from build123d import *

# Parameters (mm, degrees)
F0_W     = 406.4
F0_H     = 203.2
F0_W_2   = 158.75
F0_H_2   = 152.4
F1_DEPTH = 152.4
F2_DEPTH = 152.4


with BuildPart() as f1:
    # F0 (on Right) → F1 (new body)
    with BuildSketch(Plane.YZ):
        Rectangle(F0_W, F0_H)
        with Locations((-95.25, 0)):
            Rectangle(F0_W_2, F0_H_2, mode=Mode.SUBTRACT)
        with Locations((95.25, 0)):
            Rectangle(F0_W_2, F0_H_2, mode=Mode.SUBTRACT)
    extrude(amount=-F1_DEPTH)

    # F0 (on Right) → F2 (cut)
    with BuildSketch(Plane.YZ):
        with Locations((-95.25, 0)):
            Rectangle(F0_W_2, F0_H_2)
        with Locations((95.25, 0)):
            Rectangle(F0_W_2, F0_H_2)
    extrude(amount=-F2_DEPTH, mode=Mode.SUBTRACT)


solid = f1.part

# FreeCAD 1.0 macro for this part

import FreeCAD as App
import Part
import Sketcher

V = App.Vector
Q = App.Units.Quantity


def add_polygon(sketch, points):
    """Adds a closed chain of lines whose ends are joined by coincident constraints."""
    first, n = sketch.GeometryCount, len(points)
    for a, b in zip(points, points[1:] + points[:1]):
        sketch.addGeometry(Part.LineSegment(App.Vector(*a, 0), App.Vector(*b, 0)), False)
    for i in range(n):
        sketch.addConstraint(Sketcher.Constraint("Coincident", first + i, 2, first + (i + 1) % n, 1))

doc = App.newDocument("Part")
body = doc.addObject("PartDesign::Body", "Body")

# Sketch on YZ plane
sketch1 = body.newObject("Sketcher::SketchObject", "Sketch")
sketch1.AttachmentSupport = (doc.getObject("YZ_Plane"), [""])
sketch1.MapMode = "FlatFace"
add_polygon(sketch1, [(-203, 102), (-203, -102), (203, -102), (203, 102)])  # lines 0-3
add_polygon(sketch1, [(-16, -76), (-175, -76), (-175, 76), (-16, 76)])  # lines 4-7
add_polygon(sketch1, [(175, -76), (16, -76), (16, 76), (175, 76)])  # lines 8-11
sketch1.addConstraint([
    Sketcher.Constraint("Vertical", 0),
    Sketcher.Constraint("Horizontal", 1),
    Sketcher.Constraint("Vertical", 2),
    Sketcher.Constraint("Horizontal", 3),
    Sketcher.Constraint("Horizontal", 4),
    Sketcher.Constraint("Vertical", 5),
    Sketcher.Constraint("Horizontal", 6),
    Sketcher.Constraint("Vertical", 7),
    Sketcher.Constraint("Horizontal", 8),
    Sketcher.Constraint("Vertical", 9),
    Sketcher.Constraint("Horizontal", 10),
    Sketcher.Constraint("Vertical", 11),
    Sketcher.Constraint("Symmetric", 0, 2, 2, 2, -1, 1),
    Sketcher.Constraint("Symmetric", 6, 2, 8, 2, -1, 1),
    Sketcher.Constraint("Symmetric", 4, 2, 10, 2, -1, 1),
    Sketcher.Constraint("Horizontal", 7, 2, 8, 2),
    Sketcher.Constraint("DistanceX", 1, 1, 1, 2, Q("16 in")),
    Sketcher.Constraint("DistanceY", 0, 2, 0, 1, Q("8 in")),
    Sketcher.Constraint("DistanceY", 5, 1, 5, 2, Q("6 in")),
    Sketcher.Constraint("DistanceX", 4, 2, 4, 1, Q("6.25 in")),
    Sketcher.Constraint("DistanceX", 4, 2, 8, 2, Q("7.5 in")),
])
pad1 = body.newObject("PartDesign::Pad", "Pad")
pad1.Profile = sketch1
pad1.Length = Q("6 in")
pad1.Reversed = True

# Sketch on YZ plane
sketch2 = body.newObject("Sketcher::SketchObject", "Sketch001")
sketch2.AttachmentSupport = (doc.getObject("YZ_Plane"), [""])
sketch2.MapMode = "FlatFace"
add_polygon(sketch2, [(-175, 76), (-175, -76), (-16, -76), (-16, 76)])  # lines 0-3
add_polygon(sketch2, [(16, 76), (16, -76), (175, -76), (175, 76)])  # lines 4-7
sketch2.addConstraint([
    Sketcher.Constraint("Vertical", 0),
    Sketcher.Constraint("Horizontal", 1),
    Sketcher.Constraint("Vertical", 2),
    Sketcher.Constraint("Horizontal", 3),
    Sketcher.Constraint("Vertical", 4),
    Sketcher.Constraint("Horizontal", 5),
    Sketcher.Constraint("Vertical", 6),
    Sketcher.Constraint("Horizontal", 7),
    Sketcher.Constraint("Symmetric", 2, 2, 4, 2, -1, 1),
    Sketcher.Constraint("Symmetric", 0, 2, 6, 2, -1, 1),
    Sketcher.Constraint("Horizontal", 1, 2, 4, 2),
    Sketcher.Constraint("DistanceY", 0, 2, 0, 1, Q("6 in")),
    Sketcher.Constraint("DistanceX", 1, 1, 1, 2, Q("6.25 in")),
    Sketcher.Constraint("DistanceX", 0, 2, 4, 2, Q("7.5 in")),
])
pocket1 = body.newObject("PartDesign::Pocket", "Pocket")
pocket1.Profile = sketch2
pocket1.Length = Q("6 in")

doc.recompute()
